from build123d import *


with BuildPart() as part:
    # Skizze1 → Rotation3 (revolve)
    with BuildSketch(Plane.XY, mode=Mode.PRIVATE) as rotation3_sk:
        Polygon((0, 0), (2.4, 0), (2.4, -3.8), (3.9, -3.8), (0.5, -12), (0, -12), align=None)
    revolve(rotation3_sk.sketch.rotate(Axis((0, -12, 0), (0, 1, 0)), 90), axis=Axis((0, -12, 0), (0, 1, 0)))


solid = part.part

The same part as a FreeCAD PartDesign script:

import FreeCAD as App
import Part
import Sketcher
Q = App.Units.Quantity


def add_polygon(sketch, points):
    """Adds a closed chain of lines whose ends are joined by coincident constraints."""
    first, n = sketch.GeometryCount, len(points)
    for a, b in zip(points, points[1:] + points[:1]):
        sketch.addGeometry(Part.LineSegment(App.Vector(*a, 0), App.Vector(*b, 0)), False)
    for i in range(n):
        sketch.addConstraint(Sketcher.Constraint("Coincident", first + i, 2, first + (i + 1) % n, 1))

doc = App.newDocument("Part")
body = doc.addObject("PartDesign::Body", "Body")

# Sketch on XY plane
sketch1 = body.newObject("Sketcher::SketchObject", "Sketch")
sketch1.AttachmentSupport = (doc.getObject("XY_Plane"), [""])
sketch1.MapMode = "FlatFace"
add_polygon(sketch1, [(2.4, 0), (0, 0), (0, -12), (0.5, -12), (3.9, -3.8), (2.4, -3.8)])  # lines 0-5
sketch1.addConstraint(Sketcher.Constraint("Horizontal", 0))
sketch1.addConstraint(Sketcher.Constraint("Vertical", 1))
sketch1.addConstraint(Sketcher.Constraint("Horizontal", 2))
sketch1.addConstraint(Sketcher.Constraint("Horizontal", 4))
sketch1.addConstraint(Sketcher.Constraint("Vertical", 5))
sketch1.addConstraint(Sketcher.Constraint("Coincident", 0, 2, -1, 1))
sketch1.addConstraint(Sketcher.Constraint("DistanceY", 1, 2, 1, 1, Q("12 mm")))
sketch1.addConstraint(Sketcher.Constraint("DistanceX", 0, 2, 0, 1, Q("2.4 mm")))
sketch1.addConstraint(Sketcher.Constraint("DistanceX", 2, 1, 2, 2, Q("0.5 mm")))
sketch1.addConstraint(Sketcher.Constraint("DistanceX", 4, 2, 4, 1, Q("1.5 mm")))
sketch1.addConstraint(Sketcher.Constraint("DistanceY", 5, 1, 5, 2, Q("3.8 mm")))
revolution = body.newObject("PartDesign::Revolution", "Revolution")
revolution.Profile = sketch1
revolution.ReferenceAxis = (sketch1, ["V_Axis"])
revolution.Angle = 360

doc.recompute()
